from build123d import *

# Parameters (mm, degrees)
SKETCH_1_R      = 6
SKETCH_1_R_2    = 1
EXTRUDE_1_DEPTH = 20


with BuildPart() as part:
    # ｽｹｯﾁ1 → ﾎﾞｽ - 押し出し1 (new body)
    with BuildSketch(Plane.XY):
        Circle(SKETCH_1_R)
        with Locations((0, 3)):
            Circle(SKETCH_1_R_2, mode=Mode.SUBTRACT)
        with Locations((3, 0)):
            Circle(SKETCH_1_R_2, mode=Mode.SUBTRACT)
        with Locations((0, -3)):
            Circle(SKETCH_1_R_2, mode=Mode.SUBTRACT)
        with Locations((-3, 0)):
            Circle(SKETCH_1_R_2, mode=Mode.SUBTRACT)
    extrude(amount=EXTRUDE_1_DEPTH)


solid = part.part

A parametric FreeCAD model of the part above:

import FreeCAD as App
import Part
import Sketcher

V = App.Vector

doc = App.newDocument("Part")
body = doc.addObject("PartDesign::Body", "Body")

# Sketch on XY plane
sketch1 = doc.addObject("Sketcher::SketchObject", "Sketch")
body.addObject(sketch1)
sketch1.AttachmentSupport = (doc.XY_Plane, [""])
sketch1.MapMode = "FlatFace"
sketch1.addGeometry([
    Part.Circle(V(0, 0, 0), V(0, 0, 1), 6),  # 0
    Part.Circle(V(0, -3, 0), V(0, 0, 1), 1),  # 1
    Part.Circle(V(-3, 0, 0), V(0, 0, 1), 1),  # 2
    Part.Circle(V(3, 0, 0), V(0, 0, 1), 1),  # 3
    Part.Circle(V(0, 3, 0), V(0, 0, 1), 1),  # 4
], False)
sketch1.addConstraint([
    Sketcher.Constraint("Coincident", 0, 3, -1, 1),
    Sketcher.Constraint("Equal", 1, 2),
    Sketcher.Constraint("Equal", 2, 3),
    Sketcher.Constraint("Equal", 3, 4),
    Sketcher.Constraint("Symmetric", 2, 3, 3, 3, -1, 1),
    Sketcher.Constraint("Symmetric", 1, 3, 4, 3, -1, 1),
    Sketcher.Constraint("PointOnObject", 1, 3, -2),
    Sketcher.Constraint("PointOnObject", 2, 3, -1),
    Sketcher.Constraint("Diameter", 0, 12.0),
    Sketcher.Constraint("Diameter", 1, 2.0),
    Sketcher.Constraint("DistanceY", 1, 3, -1, 1, 3.0),
    Sketcher.Constraint("DistanceX", 2, 3, -1, 1, 3.0),
])
pad1 = doc.addObject("PartDesign::Pad", "Pad")
body.addObject(pad1)
pad1.Profile = sketch1
pad1.Length = 20

doc.recompute()
